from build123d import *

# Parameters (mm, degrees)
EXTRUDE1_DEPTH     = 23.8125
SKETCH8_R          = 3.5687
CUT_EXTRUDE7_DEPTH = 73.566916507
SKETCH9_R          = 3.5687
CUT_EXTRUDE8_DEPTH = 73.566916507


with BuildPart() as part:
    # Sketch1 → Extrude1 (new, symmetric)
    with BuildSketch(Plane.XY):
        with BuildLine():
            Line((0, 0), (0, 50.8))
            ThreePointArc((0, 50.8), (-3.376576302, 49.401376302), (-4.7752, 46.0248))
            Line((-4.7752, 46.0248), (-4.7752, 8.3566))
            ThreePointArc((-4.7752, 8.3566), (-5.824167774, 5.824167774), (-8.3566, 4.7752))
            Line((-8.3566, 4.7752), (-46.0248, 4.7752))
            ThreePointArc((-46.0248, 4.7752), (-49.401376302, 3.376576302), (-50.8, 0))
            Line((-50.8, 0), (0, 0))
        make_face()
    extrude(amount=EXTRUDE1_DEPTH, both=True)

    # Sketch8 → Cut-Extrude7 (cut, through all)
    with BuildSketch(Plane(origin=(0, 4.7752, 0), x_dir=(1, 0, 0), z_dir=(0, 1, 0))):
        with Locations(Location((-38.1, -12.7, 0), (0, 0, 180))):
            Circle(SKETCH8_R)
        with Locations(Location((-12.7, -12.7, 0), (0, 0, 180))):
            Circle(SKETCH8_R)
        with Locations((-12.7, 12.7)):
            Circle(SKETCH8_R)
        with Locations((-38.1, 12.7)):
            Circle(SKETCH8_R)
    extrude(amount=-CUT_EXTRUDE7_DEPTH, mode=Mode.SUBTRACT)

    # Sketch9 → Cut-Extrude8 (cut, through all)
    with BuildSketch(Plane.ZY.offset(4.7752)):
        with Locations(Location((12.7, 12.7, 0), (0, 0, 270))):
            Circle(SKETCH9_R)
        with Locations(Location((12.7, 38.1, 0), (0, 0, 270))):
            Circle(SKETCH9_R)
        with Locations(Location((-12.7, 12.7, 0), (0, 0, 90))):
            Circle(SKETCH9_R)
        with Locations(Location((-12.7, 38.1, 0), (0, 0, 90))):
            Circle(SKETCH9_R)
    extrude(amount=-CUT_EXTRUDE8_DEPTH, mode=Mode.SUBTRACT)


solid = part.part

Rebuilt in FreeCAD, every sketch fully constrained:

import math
import FreeCAD as App
import Part
import Sketcher

V = App.Vector
Q = App.Units.Quantity

doc = App.newDocument("Part")
body = doc.addObject("PartDesign::Body", "Body")

sketch1 = body.newObject("Sketcher::SketchObject", "Sketch")
sketch1.AttachmentSupport = (doc.getObject("XY_Plane"), [""])
sketch1.MapMode = "FlatFace"
sketch1.addGeometry([
    Part.LineSegment(V(0, 0, 0), V(0, 50.8, 0)),
    Part.ArcOfCircle(Part.Circle(V(0, 46, 0), V(0, 0, 1), 4.8), math.radians(90), math.radians(180)),
    Part.LineSegment(V(-4.8, 46, 0), V(-4.8, 8.4, 0)),
    Part.ArcOfCircle(Part.Circle(V(-8.4, 8.4, 0), V(0, 0, 1), 3.6), math.radians(-90), math.radians(0)),
    Part.LineSegment(V(-8.4, 4.8, 0), V(-46, 4.8, 0)),
    Part.ArcOfCircle(Part.Circle(V(-46, 0, 0), V(0, 0, 1), 4.8), math.radians(90), math.radians(180)),
    Part.LineSegment(V(-50.8, 0, 0), V(0, 0, 0)),
], False)
sketch1.addConstraint([
    Sketcher.Constraint("Coincident", 0, 2, 1, 1),
    Sketcher.Constraint("Tangent", 1, 2, 2, 1),
    Sketcher.Constraint("Tangent", 2, 2, 3, 2),
    Sketcher.Constraint("Tangent", 3, 1, 4, 1),
    Sketcher.Constraint("Tangent", 4, 2, 5, 1),
    Sketcher.Constraint("Coincident", 5, 2, 6, 1),
    Sketcher.Constraint("Coincident", 6, 2, 0, 1),
    Sketcher.Constraint("Vertical", 0),
    Sketcher.Constraint("Vertical", 2),
    Sketcher.Constraint("Horizontal", 4),
    Sketcher.Constraint("Horizontal", 6),
    Sketcher.Constraint("Coincident", 6, 2, -1, 1),
    Sketcher.Constraint("Equal", 1, 5),
    Sketcher.Constraint("PointOnObject", 1, 3, -2),
    Sketcher.Constraint("PointOnObject", 5, 3, -1),
    Sketcher.Constraint("Equal", 6, 0),
    Sketcher.Constraint("DistanceX", 6, 1, 6, 2, Q("2 in")),
    Sketcher.Constraint("Radius", 1, Q("0.188 in")),
    Sketcher.Constraint("Radius", 3, Q("0.141 in")),
])
pad1 = body.newObject("PartDesign::Pad", "Pad")
pad1.Profile = sketch1
pad1.Length = Q("1.875 in")
pad1.Midplane = True

sketch2 = body.newObject("Sketcher::SketchObject", "Sketch001")
sketch2.AttachmentSupport = (doc.getObject("XZ_Plane"), [""])
sketch2.MapMode = "FlatFace"
sketch2.AttachmentOffset = App.Placement(V(0, 0, -0.188 * 25.4), App.Rotation())
sketch2.addGeometry([
    Part.Circle(V(-38.1, 12.7, 0), V(0, 0, 1), 3.6),
    Part.Circle(V(-12.7, 12.7, 0), V(0, 0, 1), 3.6),
    Part.Circle(V(-12.7, -12.7, 0), V(0, 0, 1), 3.6),
    Part.Circle(V(-38.1, -12.7, 0), V(0, 0, 1), 3.6),
], False)
sketch2.addConstraint([
    Sketcher.Constraint("Equal", 0, 1),
    Sketcher.Constraint("Equal", 1, 2),
    Sketcher.Constraint("Equal", 2, 3),
    Sketcher.Constraint("Symmetric", 1, 3, 2, 3, -1),
    Sketcher.Constraint("Symmetric", 0, 3, 3, 3, -1),
    Sketcher.Constraint("Horizontal", 0, 3, 1, 3),
    Sketcher.Constraint("Diameter", 0, Q("0.281 in")),
    Sketcher.Constraint("DistanceX", 0, 3, 1, 3, Q("1 in")),
    Sketcher.Constraint("DistanceY", 2, 3, 1, 3, Q("1 in")),
    Sketcher.Constraint("DistanceX", 0, 3, -1, 1, Q("1.5 in")),
])
pocket1 = body.newObject("PartDesign::Pocket", "Pocket")
pocket1.Profile = sketch2
pocket1.Type = "ThroughAll"
pocket1.Reversed = True

sketch3 = body.newObject("Sketcher::SketchObject", "Sketch002")
sketch3.AttachmentSupport = (doc.getObject("YZ_Plane"), [""])
sketch3.MapMode = "FlatFace"
sketch3.AttachmentOffset = App.Placement(V(0, 0, -0.188 * 25.4), App.Rotation())
sketch3.addGeometry([
    Part.Circle(V(12.7, 12.7, 0), V(0, 0, 1), 3.6),
    Part.Circle(V(38.1, 12.7, 0), V(0, 0, 1), 3.6),
    Part.Circle(V(12.7, -12.7, 0), V(0, 0, 1), 3.6),
    Part.Circle(V(38.1, -12.7, 0), V(0, 0, 1), 3.6),
], False)
sketch3.addConstraint([
    Sketcher.Constraint("Equal", 0, 1),
    Sketcher.Constraint("Equal", 1, 2),
    Sketcher.Constraint("Equal", 2, 3),
    Sketcher.Constraint("Symmetric", 0, 3, 2, 3, -1),
    Sketcher.Constraint("Symmetric", 1, 3, 3, 3, -1),
    Sketcher.Constraint("Horizontal", 0, 3, 1, 3),
    Sketcher.Constraint("Diameter", 0, Q("0.281 in")),
    Sketcher.Constraint("DistanceX", 0, 3, 1, 3, Q("1 in")),
    Sketcher.Constraint("DistanceY", 2, 3, 0, 3, Q("1 in")),
    Sketcher.Constraint("DistanceX", -1, 1, 0, 3, Q("0.5 in")),
])
pocket2 = body.newObject("PartDesign::Pocket", "Pocket001")
pocket2.Profile = sketch3
pocket2.Type = "ThroughAll"
pocket2.Reversed = True

doc.recompute()
